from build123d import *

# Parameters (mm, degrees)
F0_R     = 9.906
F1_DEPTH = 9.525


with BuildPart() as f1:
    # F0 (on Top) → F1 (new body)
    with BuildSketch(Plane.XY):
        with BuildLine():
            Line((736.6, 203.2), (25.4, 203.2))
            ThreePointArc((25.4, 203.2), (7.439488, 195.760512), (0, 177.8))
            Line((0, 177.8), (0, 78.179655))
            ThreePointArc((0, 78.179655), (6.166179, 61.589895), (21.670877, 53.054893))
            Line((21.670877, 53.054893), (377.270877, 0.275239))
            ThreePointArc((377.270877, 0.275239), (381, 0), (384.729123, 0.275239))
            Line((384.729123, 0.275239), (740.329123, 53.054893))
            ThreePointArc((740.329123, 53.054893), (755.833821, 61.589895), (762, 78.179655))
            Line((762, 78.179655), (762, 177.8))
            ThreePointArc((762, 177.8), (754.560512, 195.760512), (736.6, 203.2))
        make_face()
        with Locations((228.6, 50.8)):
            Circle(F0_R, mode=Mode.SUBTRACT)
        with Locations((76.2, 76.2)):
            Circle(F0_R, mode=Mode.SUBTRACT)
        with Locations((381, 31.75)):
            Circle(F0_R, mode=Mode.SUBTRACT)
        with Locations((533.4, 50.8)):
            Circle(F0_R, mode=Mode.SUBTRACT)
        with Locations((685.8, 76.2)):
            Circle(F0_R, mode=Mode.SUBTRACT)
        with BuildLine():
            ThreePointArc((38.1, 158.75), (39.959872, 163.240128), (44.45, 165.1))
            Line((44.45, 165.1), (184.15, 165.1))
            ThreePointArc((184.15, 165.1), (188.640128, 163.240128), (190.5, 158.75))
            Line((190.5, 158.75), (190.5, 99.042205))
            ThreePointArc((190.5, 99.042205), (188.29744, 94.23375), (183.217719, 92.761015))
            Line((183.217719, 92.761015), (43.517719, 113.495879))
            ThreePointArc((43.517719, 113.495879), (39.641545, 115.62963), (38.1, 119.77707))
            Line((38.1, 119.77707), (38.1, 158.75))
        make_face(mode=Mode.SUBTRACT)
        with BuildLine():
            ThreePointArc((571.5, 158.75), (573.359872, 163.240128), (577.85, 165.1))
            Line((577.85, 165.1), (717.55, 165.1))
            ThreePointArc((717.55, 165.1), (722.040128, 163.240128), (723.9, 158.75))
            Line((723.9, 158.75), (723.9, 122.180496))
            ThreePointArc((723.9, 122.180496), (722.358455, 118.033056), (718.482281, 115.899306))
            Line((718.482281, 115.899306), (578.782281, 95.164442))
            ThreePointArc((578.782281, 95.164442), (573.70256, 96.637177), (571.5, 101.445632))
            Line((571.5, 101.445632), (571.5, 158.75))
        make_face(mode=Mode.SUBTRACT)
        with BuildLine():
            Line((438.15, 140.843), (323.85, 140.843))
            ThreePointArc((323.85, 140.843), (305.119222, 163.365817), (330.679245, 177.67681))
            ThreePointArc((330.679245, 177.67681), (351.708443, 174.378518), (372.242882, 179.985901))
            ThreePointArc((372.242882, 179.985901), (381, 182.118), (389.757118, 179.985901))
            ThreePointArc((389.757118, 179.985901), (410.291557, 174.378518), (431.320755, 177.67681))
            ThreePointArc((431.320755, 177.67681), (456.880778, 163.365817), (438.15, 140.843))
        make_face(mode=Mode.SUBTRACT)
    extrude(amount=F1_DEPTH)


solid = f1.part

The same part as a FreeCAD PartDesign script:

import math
import FreeCAD as App
import Part
import Sketcher

V = App.Vector
Q = App.Units.Quantity

doc = App.newDocument("Part")
body = doc.addObject("PartDesign::Body", "Body")

# Sketch on XY plane
sketch1 = body.newObject("Sketcher::SketchObject", "Sketch")
sketch1.AttachmentSupport = (doc.getObject("XY_Plane"), [""])
sketch1.MapMode = "FlatFace"
sketch1.addGeometry([
    Part.LineSegment(V(736.6, 203.2, 0), V(25.4, 203.2, 0)),  # 0
    Part.ArcOfCircle(Part.Circle(V(25.400001, 177.799999, 0), V(0, 0, 1), 25.400001), math.radians(90.000002), math.radians(179.999998)),  # 1
    Part.LineSegment(V(0, 177.8, 0), V(0, 78.179655, 0)),  # 2
    Part.ArcOfCircle(Part.Circle(V(25.400001, 78.179655, 0), V(0, 0, 1), 25.400001), math.radians(180), math.radians(261.557553)),  # 3
    Part.LineSegment(V(21.670877, 53.054893, 0), V(377.270877, 0.275239, 0)),  # 4
    Part.ArcOfCircle(Part.Circle(V(381, 25.399952, 0), V(0, 0, 1), 25.399952), math.radians(-98.442462), math.radians(-81.557538)),  # 5
    Part.LineSegment(V(384.729123, 0.275239, 0), V(740.329123, 53.054893, 0)),  # 6
    Part.ArcOfCircle(Part.Circle(V(736.599999, 78.179655, 0), V(0, 0, 1), 25.400001), math.radians(-81.557553), math.radians(0)),  # 7
    Part.LineSegment(V(762, 78.179655, 0), V(762, 177.8, 0)),  # 8
    Part.ArcOfCircle(Part.Circle(V(736.599999, 177.799999, 0), V(0, 0, 1), 25.400001), math.radians(0.000002), math.radians(89.999998)),  # 9
    Part.Circle(V(228.6, 50.8, 0), V(0, 0, 1), 9.906),  # 10
    Part.Circle(V(76.2, 76.2, 0), V(0, 0, 1), 9.906),  # 11
    Part.Circle(V(381, 31.75, 0), V(0, 0, 1), 9.906),  # 12
    Part.Circle(V(533.4, 50.8, 0), V(0, 0, 1), 9.906),  # 13
    Part.Circle(V(685.8, 76.2, 0), V(0, 0, 1), 9.906),  # 14
    Part.LineSegment(V(38.1, 119.77707, 0), V(38.1, 158.75, 0)),  # 15
    Part.ArcOfCircle(Part.Circle(V(44.45, 158.75, 0), V(0, 0, 1), 6.35), math.radians(90.000002), math.radians(179.999998)),  # 16
    Part.LineSegment(V(44.45, 165.1, 0), V(184.15, 165.1, 0)),  # 17
    Part.ArcOfCircle(Part.Circle(V(184.15, 158.75, 0), V(0, 0, 1), 6.35), math.radians(0.000002), math.radians(89.999998)),  # 18
    Part.LineSegment(V(190.5, 158.75, 0), V(190.5, 99.042205, 0)),  # 19
    Part.ArcOfCircle(Part.Circle(V(184.15, 99.042205, 0), V(0, 0, 1), 6.35), math.radians(-98.442451), math.radians(-0.000001)),  # 20
    Part.LineSegment(V(183.217719, 92.761015, 0), V(43.517719, 113.495879, 0)),  # 21
    Part.ArcOfCircle(Part.Circle(V(44.450002, 119.777071, 0), V(0, 0, 1), 6.350002), math.radians(-179.999992), math.radians(-98.442463)),  # 22
    Part.LineSegment(V(571.5, 101.445632, 0), V(571.5, 158.75, 0)),  # 23
    Part.ArcOfCircle(Part.Circle(V(577.85, 158.75, 0), V(0, 0, 1), 6.35), math.radians(90.000002), math.radians(179.999998)),  # 24
    Part.LineSegment(V(577.85, 165.1, 0), V(717.55, 165.1, 0)),  # 25
    Part.ArcOfCircle(Part.Circle(V(717.55, 158.75, 0), V(0, 0, 1), 6.35), math.radians(0.000002), math.radians(89.999998)),  # 26
    Part.LineSegment(V(723.9, 158.75, 0), V(723.9, 122.180496, 0)),  # 27
    Part.ArcOfCircle(Part.Circle(V(717.55, 122.180496, 0), V(0, 0, 1), 6.35), math.radians(-81.557553), math.radians(-0.000001)),  # 28
    Part.LineSegment(V(718.482281, 115.899306, 0), V(578.782281, 95.164442, 0)),  # 29
    Part.ArcOfCircle(Part.Circle(V(577.85, 101.445632, 0), V(0, 0, 1), 6.35), math.radians(-179.999999), math.radians(-81.557549)),  # 30
    Part.ArcOfCircle(Part.Circle(V(438.15, 159.893, 0), V(0, 0, 1), 19.05), math.radians(-90.000001), math.radians(111.007525)),  # 31
    Part.LineSegment(V(438.15, 140.843, 0), V(323.85, 140.843, 0)),  # 32
    Part.ArcOfCircle(Part.Circle(V(323.85, 159.893, 0), V(0, 0, 1), 19.05), math.radians(68.992475), math.radians(270.000001)),  # 33
    Part.ArcOfCircle(Part.Circle(V(348.890566, 225.100304, 0), V(0, 0, 1), 50.8), math.radians(-111.007526), math.radians(-62.632814)),  # 34
    Part.ArcOfCircle(Part.Circle(V(381, 163.068002, 0), V(0, 0, 1), 19.049998), math.radians(62.632811), math.radians(117.367189)),  # 35
    Part.ArcOfCircle(Part.Circle(V(413.109434, 225.100304, 0), V(0, 0, 1), 50.8), math.radians(-117.367186), math.radians(-68.992474)),  # 36
], False)
sketch1.addConstraint([
    Sketcher.Constraint("Coincident", 0, 2, 1, 1),
    Sketcher.Constraint("Coincident", 1, 2, 2, 1),
    Sketcher.Constraint("Coincident", 2, 2, 3, 1),
    Sketcher.Constraint("Coincident", 3, 2, 4, 1),
    Sketcher.Constraint("Coincident", 4, 2, 5, 1),
    Sketcher.Constraint("Coincident", 5, 2, 6, 1),
    Sketcher.Constraint("Coincident", 6, 2, 7, 1),
    Sketcher.Constraint("Coincident", 7, 2, 8, 1),
    Sketcher.Constraint("Coincident", 8, 2, 9, 1),
    Sketcher.Constraint("Coincident", 9, 2, 0, 1),
    Sketcher.Constraint("Coincident", 15, 2, 16, 2),
    Sketcher.Constraint("Coincident", 16, 1, 17, 1),
    Sketcher.Constraint("Coincident", 17, 2, 18, 2),
    Sketcher.Constraint("Coincident", 18, 1, 19, 1),
    Sketcher.Constraint("Coincident", 19, 2, 20, 2),
    Sketcher.Constraint("Coincident", 20, 1, 21, 1),
    Sketcher.Constraint("Coincident", 21, 2, 22, 2),
    Sketcher.Constraint("Coincident", 22, 1, 15, 1),
    Sketcher.Constraint("Coincident", 23, 2, 24, 2),
    Sketcher.Constraint("Coincident", 24, 1, 25, 1),
    Sketcher.Constraint("Coincident", 25, 2, 26, 2),
    Sketcher.Constraint("Coincident", 26, 1, 27, 1),
    Sketcher.Constraint("Coincident", 27, 2, 28, 2),
    Sketcher.Constraint("Coincident", 28, 1, 29, 1),
    Sketcher.Constraint("Coincident", 29, 2, 30, 2),
    Sketcher.Constraint("Coincident", 30, 1, 23, 1),
    Sketcher.Constraint("Coincident", 31, 1, 32, 1),
    Sketcher.Constraint("Coincident", 32, 2, 33, 2),
    Sketcher.Constraint("Coincident", 33, 1, 34, 1),
    Sketcher.Constraint("Coincident", 34, 2, 35, 2),
    Sketcher.Constraint("Coincident", 35, 1, 36, 1),
    Sketcher.Constraint("Coincident", 36, 2, 31, 2),
    Sketcher.Constraint("Horizontal", 0),
    Sketcher.Constraint("Vertical", 2),
    Sketcher.Constraint("Vertical", 8),
    Sketcher.Constraint("Vertical", 15),
    Sketcher.Constraint("Horizontal", 17),
    Sketcher.Constraint("Vertical", 19),
    Sketcher.Constraint("Vertical", 23),
    Sketcher.Constraint("Horizontal", 25),
    Sketcher.Constraint("Vertical", 27),
    Sketcher.Constraint("Horizontal", 32),
    Sketcher.Constraint("PointOnObject", 1, 2, -2),
    Sketcher.Constraint("Radius", 1, Q("1 in")),
    Sketcher.Constraint("Radius", 3, Q("1 in")),
    Sketcher.Constraint("Radius", 7, Q("1 in")),
    Sketcher.Constraint("Radius", 9, Q("1 in")),
    Sketcher.Constraint("Radius", 34, Q("2 in")),
    Sketcher.Constraint("Radius", 36, Q("2 in")),
    Sketcher.Constraint("Diameter", 10, Q("0.78 in")),
    Sketcher.Constraint("Diameter", 11, Q("0.78 in")),
    Sketcher.Constraint("Diameter", 12, Q("0.78 in")),
    Sketcher.Constraint("Diameter", 13, Q("0.78 in")),
    Sketcher.Constraint("Diameter", 14, Q("0.78 in")),
    Sketcher.Constraint("DistanceX", 0, 2, 0, 1, Q("28 in")),
    Sketcher.Constraint("Radius", 16, Q("0.25 in")),
    Sketcher.Constraint("Radius", 18, Q("0.25 in")),
    Sketcher.Constraint("Radius", 20, Q("0.25 in")),
    Sketcher.Constraint("Radius", 22, Q("0.2500001 in")),
    Sketcher.Constraint("Radius", 24, Q("0.25 in")),
    Sketcher.Constraint("Radius", 26, Q("0.25 in")),
    Sketcher.Constraint("Radius", 28, Q("0.25 in")),
    Sketcher.Constraint("Radius", 30, Q("0.25 in")),
    Sketcher.Constraint("Radius", 31, Q("0.75 in")),
    Sketcher.Constraint("Radius", 33, Q("0.75 in")),
    Sketcher.Constraint("Radius", 35, Q("0.7499999 in")),
    Sketcher.Constraint("DistanceX", 17, 1, 17, 2, Q("5.5 in")),
    Sketcher.Constraint("DistanceX", 25, 1, 25, 2, Q("5.5 in")),
    Sketcher.Constraint("DistanceX", 32, 2, 32, 1, Q("4.5 in")),
    Sketcher.Constraint("DistanceY", -1, 1, 1, 3, Q("7 in")),
    Sketcher.Constraint("DistanceX", -1, 1, 5, 3, Q("15 in")),
    Sketcher.Constraint("DistanceX", -1, 1, 7, 3, Q("29 in")),
    Sketcher.Constraint("DistanceX", -1, 1, 10, 3, Q("9 in")),
    Sketcher.Constraint("DistanceY", -1, 1, 10, 3, Q("2 in")),
    Sketcher.Constraint("DistanceX", -1, 1, 11, 3, Q("3 in")),
    Sketcher.Constraint("DistanceY", -1, 1, 11, 3, Q("3 in")),
    Sketcher.Constraint("DistanceX", -1, 1, 12, 3, Q("15 in")),
    Sketcher.Constraint("DistanceX", -1, 1, 13, 3, Q("21 in")),
    Sketcher.Constraint("DistanceY", -1, 1, 13, 3, Q("2 in")),
    Sketcher.Constraint("DistanceX", -1, 1, 14, 3, Q("27 in")),
    Sketcher.Constraint("DistanceY", -1, 1, 14, 3, Q("3 in")),
    Sketcher.Constraint("DistanceX", -1, 1, 35, 3, Q("15 in")),
    Sketcher.Constraint("DistanceX", -1, 1, 0, 2, Q("1 in")),
    Sketcher.Constraint("DistanceY", -1, 1, 1, 2, Q("7 in")),
    Sketcher.Constraint("DistanceY", -1, 1, 8, 2, Q("7 in")),
    Sketcher.Constraint("DistanceY", 12, 3, 16, 3, Q("5 in")),
    Sketcher.Constraint("DistanceY", 12, 3, 24, 3, Q("5 in")),
    Sketcher.Constraint("DistanceX", -1, 1, 15, 2, Q("1.5 in")),
    Sketcher.Constraint("DistanceY", -1, 1, 16, 1, Q("6.5 in")),
    Sketcher.Constraint("DistanceX", -1, 1, 18, 1, Q("7.5 in")),
    Sketcher.Constraint("DistanceX", -1, 1, 23, 2, Q("22.5 in")),
    Sketcher.Constraint("DistanceX", -1, 1, 26, 1, Q("28.5 in")),
    Sketcher.Constraint("DistanceX", 31, 3, 24, 3, Q("5.5 in")),
    Sketcher.Constraint("DistanceX", 33, 3, 31, 3, Q("4.5 in")),
    Sketcher.Constraint("DistanceX", 17, 2, 33, 3, Q("5.5 in")),
    Sketcher.Constraint("DistanceX", 31, 3, 24, 1, Q("5.5 in")),
    Sketcher.Constraint("DistanceX", 33, 3, 31, 1, Q("4.5 in")),
    Sketcher.Constraint("DistanceY", -1, 1, 35, 3, Q("6.4200001 in")),
    Sketcher.Constraint("DistanceY", -1, 1, 15, 2, Q("6.25 in")),
    Sketcher.Constraint("DistanceY", -1, 1, 18, 1, Q("6.25 in")),
    Sketcher.Constraint("DistanceY", -1, 1, 23, 2, Q("6.25 in")),
    Sketcher.Constraint("DistanceY", -1, 1, 26, 1, Q("6.25 in")),
    Sketcher.Constraint("DistanceY", -1, 1, 31, 3, Q("6.295 in")),
    Sketcher.Constraint("Radius", 5, 25.399952),
    Sketcher.Constraint("DistanceY", 15, 1, 15, 2, 38.97293),
    Sketcher.Constraint("DistanceY", -1, 1, 34, 2, 179.985901),
    Sketcher.Constraint("DistanceY", -1, 1, 35, 1, 179.985901),
    Sketcher.Constraint("Distance", 4, 359.495552),
    Sketcher.Constraint("Distance", 6, 359.495552),
    Sketcher.Constraint("DistanceY", 2, 2, 2, 1, 99.620345),
    Sketcher.Constraint("DistanceY", 8, 1, 8, 2, 99.620345),
    Sketcher.Constraint("DistanceY", 19, 2, 19, 1, 59.707795),
    Sketcher.Constraint("DistanceY", 23, 1, 23, 2, 57.304368),
    Sketcher.Constraint("DistanceY", 27, 2, 27, 1, 36.569504),
    Sketcher.Constraint("DistanceY", -1, 1, 22, 3, 119.777071),
    Sketcher.Constraint("DistanceY", -1, 1, 4, 2, 0.275239),
    Sketcher.Constraint("DistanceY", -1, 1, 5, 2, 0.275239),
    Sketcher.Constraint("DistanceX", -1, 1, 20, 1, 183.217719),
    Sketcher.Constraint("DistanceX", -1, 1, 21, 2, 43.517719),
    Sketcher.Constraint("DistanceX", -1, 1, 28, 1, 718.482281),
    Sketcher.Constraint("DistanceX", -1, 1, 29, 2, 578.782281),
    Sketcher.Constraint("DistanceY", -1, 1, 29, 2, 95.164442),
    Sketcher.Constraint("DistanceY", -1, 1, 33, 1, 177.67681),
    Sketcher.Constraint("DistanceY", -1, 1, 36, 2, 177.67681),
    Sketcher.Constraint("DistanceY", 3, 3, 20, 3, 20.86255),
    Sketcher.Constraint("DistanceY", 7, 3, 28, 3, 44.000841),
    Sketcher.Constraint("DistanceY", 5, 3, 35, 3, 137.66805),
    Sketcher.Constraint("DistanceY", 3, 2, 3, 3, 25.124762),
    Sketcher.Constraint("DistanceY", 6, 2, 7, 3, 25.124762),
])
pad1 = body.newObject("PartDesign::Pad", "Pad")
pad1.Profile = sketch1
pad1.Length = Q("0.375 in")

doc.recompute()
